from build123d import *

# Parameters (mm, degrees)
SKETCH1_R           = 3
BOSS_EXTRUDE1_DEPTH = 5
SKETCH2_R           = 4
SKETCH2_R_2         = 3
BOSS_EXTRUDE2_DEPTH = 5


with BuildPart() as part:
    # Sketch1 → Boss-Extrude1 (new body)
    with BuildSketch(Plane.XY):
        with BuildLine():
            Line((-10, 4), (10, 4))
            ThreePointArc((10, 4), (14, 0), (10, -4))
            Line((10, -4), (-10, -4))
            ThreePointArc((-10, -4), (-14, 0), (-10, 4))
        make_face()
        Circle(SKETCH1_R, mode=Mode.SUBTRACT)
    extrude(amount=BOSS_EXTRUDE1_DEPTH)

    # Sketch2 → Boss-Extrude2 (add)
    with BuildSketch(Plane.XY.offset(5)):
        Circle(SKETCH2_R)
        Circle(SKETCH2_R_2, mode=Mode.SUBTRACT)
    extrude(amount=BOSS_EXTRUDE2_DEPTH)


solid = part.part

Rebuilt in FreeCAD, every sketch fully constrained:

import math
import FreeCAD as App
import Part
import Sketcher

doc = App.newDocument("Part")
params = doc.addObject("Spreadsheet::Sheet", "Params")
for row, (alias, value) in enumerate([
    ("sketch1_diameter", "6 mm"),
    ("sketch1_radius", "4 mm"),
    ("sketch1_width", "20 mm"),
    ("pad1_length", "5 mm"),
    ("sketch2_diameter", "8 mm"),
    ("sketch2_diameter2", "6 mm"),
    ("pad2_length", "5 mm"),
], start=1):
    params.set(f"A{row}", alias)
    params.set(f"B{row}", "=" + value)
    params.setAlias(f"B{row}", alias)

body = doc.addObject("PartDesign::Body", "Body")

# Sketch on XY plane
sketch1 = body.newObject("Sketcher::SketchObject", "Sketch")
sketch1.AttachmentSupport = (doc.getObject("XY_Plane"), [""])
sketch1.MapMode = "FlatFace"
sketch1.addGeometry([
    Part.LineSegment(App.Vector(10, 4, 0), App.Vector(-10, 4, 0)),  # 0
    Part.ArcOfCircle(Part.Circle(App.Vector(-10, 0, 0), App.Vector(0, 0, 1), 4), math.radians(90), math.radians(270)),  # 1
    Part.LineSegment(App.Vector(-10, -4, 0), App.Vector(10, -4, 0)),  # 2
    Part.ArcOfCircle(Part.Circle(App.Vector(10, 0, 0), App.Vector(0, 0, 1), 4), math.radians(-90), math.radians(90)),  # 3
    Part.Circle(App.Vector(0, 0, 0), App.Vector(0, 0, 1), 3),  # 4
], False)
sketch1.addConstraint([
    Sketcher.Constraint("Tangent", 0, 2, 1, 1),
    Sketcher.Constraint("Tangent", 1, 2, 2, 1),
    Sketcher.Constraint("Tangent", 2, 2, 3, 1),
    Sketcher.Constraint("Tangent", 3, 2, 0, 1),
    Sketcher.Constraint("Horizontal", 0),
    Sketcher.Constraint("Horizontal", 2),
    Sketcher.Constraint("Coincident", 4, 3, -1, 1),
    Sketcher.Constraint("Symmetric", 1, 3, 3, 3, -1, 1),
    Sketcher.Constraint("Diameter", 4, 6.0),
    Sketcher.Constraint("Radius", 1, 4.0),
    Sketcher.Constraint("DistanceX", 0, 2, 0, 1, 20.0),
])
sketch1.setExpression("Constraints[8]", "Params.sketch1_diameter")
sketch1.setExpression("Constraints[9]", "Params.sketch1_radius")
sketch1.setExpression("Constraints[10]", "Params.sketch1_width")
pad1 = body.newObject("PartDesign::Pad", "Pad")
pad1.Profile = sketch1
pad1.setExpression("Length", "Params.pad1_length")

# Sketch on XY plane
sketch2 = body.newObject("Sketcher::SketchObject", "Sketch001")
sketch2.AttachmentSupport = (doc.getObject("XY_Plane"), [""])
sketch2.MapMode = "FlatFace"
sketch2.AttachmentOffset = App.Placement(App.Vector(0, 0, 5), App.Rotation())
sketch2.addGeometry([
    Part.Circle(App.Vector(0, 0, 0), App.Vector(0, 0, 1), 4),
    Part.Circle(App.Vector(0, 0, 0), App.Vector(0, 0, 1), 3),
], False)
sketch2.addConstraint([
    Sketcher.Constraint("Coincident", 0, 3, -1, 1),
    Sketcher.Constraint("Coincident", 1, 3, -1, 1),
    Sketcher.Constraint("Diameter", 0, 8.0),
    Sketcher.Constraint("Diameter", 1, 6.0),
])
sketch2.setExpression("Constraints[2]", "Params.sketch2_diameter")
sketch2.setExpression("Constraints[3]", "Params.sketch2_diameter2")
pad2 = body.newObject("PartDesign::Pad", "Pad001")
pad2.Profile = sketch2
pad2.setExpression("Length", "Params.pad2_length")

doc.recompute()
